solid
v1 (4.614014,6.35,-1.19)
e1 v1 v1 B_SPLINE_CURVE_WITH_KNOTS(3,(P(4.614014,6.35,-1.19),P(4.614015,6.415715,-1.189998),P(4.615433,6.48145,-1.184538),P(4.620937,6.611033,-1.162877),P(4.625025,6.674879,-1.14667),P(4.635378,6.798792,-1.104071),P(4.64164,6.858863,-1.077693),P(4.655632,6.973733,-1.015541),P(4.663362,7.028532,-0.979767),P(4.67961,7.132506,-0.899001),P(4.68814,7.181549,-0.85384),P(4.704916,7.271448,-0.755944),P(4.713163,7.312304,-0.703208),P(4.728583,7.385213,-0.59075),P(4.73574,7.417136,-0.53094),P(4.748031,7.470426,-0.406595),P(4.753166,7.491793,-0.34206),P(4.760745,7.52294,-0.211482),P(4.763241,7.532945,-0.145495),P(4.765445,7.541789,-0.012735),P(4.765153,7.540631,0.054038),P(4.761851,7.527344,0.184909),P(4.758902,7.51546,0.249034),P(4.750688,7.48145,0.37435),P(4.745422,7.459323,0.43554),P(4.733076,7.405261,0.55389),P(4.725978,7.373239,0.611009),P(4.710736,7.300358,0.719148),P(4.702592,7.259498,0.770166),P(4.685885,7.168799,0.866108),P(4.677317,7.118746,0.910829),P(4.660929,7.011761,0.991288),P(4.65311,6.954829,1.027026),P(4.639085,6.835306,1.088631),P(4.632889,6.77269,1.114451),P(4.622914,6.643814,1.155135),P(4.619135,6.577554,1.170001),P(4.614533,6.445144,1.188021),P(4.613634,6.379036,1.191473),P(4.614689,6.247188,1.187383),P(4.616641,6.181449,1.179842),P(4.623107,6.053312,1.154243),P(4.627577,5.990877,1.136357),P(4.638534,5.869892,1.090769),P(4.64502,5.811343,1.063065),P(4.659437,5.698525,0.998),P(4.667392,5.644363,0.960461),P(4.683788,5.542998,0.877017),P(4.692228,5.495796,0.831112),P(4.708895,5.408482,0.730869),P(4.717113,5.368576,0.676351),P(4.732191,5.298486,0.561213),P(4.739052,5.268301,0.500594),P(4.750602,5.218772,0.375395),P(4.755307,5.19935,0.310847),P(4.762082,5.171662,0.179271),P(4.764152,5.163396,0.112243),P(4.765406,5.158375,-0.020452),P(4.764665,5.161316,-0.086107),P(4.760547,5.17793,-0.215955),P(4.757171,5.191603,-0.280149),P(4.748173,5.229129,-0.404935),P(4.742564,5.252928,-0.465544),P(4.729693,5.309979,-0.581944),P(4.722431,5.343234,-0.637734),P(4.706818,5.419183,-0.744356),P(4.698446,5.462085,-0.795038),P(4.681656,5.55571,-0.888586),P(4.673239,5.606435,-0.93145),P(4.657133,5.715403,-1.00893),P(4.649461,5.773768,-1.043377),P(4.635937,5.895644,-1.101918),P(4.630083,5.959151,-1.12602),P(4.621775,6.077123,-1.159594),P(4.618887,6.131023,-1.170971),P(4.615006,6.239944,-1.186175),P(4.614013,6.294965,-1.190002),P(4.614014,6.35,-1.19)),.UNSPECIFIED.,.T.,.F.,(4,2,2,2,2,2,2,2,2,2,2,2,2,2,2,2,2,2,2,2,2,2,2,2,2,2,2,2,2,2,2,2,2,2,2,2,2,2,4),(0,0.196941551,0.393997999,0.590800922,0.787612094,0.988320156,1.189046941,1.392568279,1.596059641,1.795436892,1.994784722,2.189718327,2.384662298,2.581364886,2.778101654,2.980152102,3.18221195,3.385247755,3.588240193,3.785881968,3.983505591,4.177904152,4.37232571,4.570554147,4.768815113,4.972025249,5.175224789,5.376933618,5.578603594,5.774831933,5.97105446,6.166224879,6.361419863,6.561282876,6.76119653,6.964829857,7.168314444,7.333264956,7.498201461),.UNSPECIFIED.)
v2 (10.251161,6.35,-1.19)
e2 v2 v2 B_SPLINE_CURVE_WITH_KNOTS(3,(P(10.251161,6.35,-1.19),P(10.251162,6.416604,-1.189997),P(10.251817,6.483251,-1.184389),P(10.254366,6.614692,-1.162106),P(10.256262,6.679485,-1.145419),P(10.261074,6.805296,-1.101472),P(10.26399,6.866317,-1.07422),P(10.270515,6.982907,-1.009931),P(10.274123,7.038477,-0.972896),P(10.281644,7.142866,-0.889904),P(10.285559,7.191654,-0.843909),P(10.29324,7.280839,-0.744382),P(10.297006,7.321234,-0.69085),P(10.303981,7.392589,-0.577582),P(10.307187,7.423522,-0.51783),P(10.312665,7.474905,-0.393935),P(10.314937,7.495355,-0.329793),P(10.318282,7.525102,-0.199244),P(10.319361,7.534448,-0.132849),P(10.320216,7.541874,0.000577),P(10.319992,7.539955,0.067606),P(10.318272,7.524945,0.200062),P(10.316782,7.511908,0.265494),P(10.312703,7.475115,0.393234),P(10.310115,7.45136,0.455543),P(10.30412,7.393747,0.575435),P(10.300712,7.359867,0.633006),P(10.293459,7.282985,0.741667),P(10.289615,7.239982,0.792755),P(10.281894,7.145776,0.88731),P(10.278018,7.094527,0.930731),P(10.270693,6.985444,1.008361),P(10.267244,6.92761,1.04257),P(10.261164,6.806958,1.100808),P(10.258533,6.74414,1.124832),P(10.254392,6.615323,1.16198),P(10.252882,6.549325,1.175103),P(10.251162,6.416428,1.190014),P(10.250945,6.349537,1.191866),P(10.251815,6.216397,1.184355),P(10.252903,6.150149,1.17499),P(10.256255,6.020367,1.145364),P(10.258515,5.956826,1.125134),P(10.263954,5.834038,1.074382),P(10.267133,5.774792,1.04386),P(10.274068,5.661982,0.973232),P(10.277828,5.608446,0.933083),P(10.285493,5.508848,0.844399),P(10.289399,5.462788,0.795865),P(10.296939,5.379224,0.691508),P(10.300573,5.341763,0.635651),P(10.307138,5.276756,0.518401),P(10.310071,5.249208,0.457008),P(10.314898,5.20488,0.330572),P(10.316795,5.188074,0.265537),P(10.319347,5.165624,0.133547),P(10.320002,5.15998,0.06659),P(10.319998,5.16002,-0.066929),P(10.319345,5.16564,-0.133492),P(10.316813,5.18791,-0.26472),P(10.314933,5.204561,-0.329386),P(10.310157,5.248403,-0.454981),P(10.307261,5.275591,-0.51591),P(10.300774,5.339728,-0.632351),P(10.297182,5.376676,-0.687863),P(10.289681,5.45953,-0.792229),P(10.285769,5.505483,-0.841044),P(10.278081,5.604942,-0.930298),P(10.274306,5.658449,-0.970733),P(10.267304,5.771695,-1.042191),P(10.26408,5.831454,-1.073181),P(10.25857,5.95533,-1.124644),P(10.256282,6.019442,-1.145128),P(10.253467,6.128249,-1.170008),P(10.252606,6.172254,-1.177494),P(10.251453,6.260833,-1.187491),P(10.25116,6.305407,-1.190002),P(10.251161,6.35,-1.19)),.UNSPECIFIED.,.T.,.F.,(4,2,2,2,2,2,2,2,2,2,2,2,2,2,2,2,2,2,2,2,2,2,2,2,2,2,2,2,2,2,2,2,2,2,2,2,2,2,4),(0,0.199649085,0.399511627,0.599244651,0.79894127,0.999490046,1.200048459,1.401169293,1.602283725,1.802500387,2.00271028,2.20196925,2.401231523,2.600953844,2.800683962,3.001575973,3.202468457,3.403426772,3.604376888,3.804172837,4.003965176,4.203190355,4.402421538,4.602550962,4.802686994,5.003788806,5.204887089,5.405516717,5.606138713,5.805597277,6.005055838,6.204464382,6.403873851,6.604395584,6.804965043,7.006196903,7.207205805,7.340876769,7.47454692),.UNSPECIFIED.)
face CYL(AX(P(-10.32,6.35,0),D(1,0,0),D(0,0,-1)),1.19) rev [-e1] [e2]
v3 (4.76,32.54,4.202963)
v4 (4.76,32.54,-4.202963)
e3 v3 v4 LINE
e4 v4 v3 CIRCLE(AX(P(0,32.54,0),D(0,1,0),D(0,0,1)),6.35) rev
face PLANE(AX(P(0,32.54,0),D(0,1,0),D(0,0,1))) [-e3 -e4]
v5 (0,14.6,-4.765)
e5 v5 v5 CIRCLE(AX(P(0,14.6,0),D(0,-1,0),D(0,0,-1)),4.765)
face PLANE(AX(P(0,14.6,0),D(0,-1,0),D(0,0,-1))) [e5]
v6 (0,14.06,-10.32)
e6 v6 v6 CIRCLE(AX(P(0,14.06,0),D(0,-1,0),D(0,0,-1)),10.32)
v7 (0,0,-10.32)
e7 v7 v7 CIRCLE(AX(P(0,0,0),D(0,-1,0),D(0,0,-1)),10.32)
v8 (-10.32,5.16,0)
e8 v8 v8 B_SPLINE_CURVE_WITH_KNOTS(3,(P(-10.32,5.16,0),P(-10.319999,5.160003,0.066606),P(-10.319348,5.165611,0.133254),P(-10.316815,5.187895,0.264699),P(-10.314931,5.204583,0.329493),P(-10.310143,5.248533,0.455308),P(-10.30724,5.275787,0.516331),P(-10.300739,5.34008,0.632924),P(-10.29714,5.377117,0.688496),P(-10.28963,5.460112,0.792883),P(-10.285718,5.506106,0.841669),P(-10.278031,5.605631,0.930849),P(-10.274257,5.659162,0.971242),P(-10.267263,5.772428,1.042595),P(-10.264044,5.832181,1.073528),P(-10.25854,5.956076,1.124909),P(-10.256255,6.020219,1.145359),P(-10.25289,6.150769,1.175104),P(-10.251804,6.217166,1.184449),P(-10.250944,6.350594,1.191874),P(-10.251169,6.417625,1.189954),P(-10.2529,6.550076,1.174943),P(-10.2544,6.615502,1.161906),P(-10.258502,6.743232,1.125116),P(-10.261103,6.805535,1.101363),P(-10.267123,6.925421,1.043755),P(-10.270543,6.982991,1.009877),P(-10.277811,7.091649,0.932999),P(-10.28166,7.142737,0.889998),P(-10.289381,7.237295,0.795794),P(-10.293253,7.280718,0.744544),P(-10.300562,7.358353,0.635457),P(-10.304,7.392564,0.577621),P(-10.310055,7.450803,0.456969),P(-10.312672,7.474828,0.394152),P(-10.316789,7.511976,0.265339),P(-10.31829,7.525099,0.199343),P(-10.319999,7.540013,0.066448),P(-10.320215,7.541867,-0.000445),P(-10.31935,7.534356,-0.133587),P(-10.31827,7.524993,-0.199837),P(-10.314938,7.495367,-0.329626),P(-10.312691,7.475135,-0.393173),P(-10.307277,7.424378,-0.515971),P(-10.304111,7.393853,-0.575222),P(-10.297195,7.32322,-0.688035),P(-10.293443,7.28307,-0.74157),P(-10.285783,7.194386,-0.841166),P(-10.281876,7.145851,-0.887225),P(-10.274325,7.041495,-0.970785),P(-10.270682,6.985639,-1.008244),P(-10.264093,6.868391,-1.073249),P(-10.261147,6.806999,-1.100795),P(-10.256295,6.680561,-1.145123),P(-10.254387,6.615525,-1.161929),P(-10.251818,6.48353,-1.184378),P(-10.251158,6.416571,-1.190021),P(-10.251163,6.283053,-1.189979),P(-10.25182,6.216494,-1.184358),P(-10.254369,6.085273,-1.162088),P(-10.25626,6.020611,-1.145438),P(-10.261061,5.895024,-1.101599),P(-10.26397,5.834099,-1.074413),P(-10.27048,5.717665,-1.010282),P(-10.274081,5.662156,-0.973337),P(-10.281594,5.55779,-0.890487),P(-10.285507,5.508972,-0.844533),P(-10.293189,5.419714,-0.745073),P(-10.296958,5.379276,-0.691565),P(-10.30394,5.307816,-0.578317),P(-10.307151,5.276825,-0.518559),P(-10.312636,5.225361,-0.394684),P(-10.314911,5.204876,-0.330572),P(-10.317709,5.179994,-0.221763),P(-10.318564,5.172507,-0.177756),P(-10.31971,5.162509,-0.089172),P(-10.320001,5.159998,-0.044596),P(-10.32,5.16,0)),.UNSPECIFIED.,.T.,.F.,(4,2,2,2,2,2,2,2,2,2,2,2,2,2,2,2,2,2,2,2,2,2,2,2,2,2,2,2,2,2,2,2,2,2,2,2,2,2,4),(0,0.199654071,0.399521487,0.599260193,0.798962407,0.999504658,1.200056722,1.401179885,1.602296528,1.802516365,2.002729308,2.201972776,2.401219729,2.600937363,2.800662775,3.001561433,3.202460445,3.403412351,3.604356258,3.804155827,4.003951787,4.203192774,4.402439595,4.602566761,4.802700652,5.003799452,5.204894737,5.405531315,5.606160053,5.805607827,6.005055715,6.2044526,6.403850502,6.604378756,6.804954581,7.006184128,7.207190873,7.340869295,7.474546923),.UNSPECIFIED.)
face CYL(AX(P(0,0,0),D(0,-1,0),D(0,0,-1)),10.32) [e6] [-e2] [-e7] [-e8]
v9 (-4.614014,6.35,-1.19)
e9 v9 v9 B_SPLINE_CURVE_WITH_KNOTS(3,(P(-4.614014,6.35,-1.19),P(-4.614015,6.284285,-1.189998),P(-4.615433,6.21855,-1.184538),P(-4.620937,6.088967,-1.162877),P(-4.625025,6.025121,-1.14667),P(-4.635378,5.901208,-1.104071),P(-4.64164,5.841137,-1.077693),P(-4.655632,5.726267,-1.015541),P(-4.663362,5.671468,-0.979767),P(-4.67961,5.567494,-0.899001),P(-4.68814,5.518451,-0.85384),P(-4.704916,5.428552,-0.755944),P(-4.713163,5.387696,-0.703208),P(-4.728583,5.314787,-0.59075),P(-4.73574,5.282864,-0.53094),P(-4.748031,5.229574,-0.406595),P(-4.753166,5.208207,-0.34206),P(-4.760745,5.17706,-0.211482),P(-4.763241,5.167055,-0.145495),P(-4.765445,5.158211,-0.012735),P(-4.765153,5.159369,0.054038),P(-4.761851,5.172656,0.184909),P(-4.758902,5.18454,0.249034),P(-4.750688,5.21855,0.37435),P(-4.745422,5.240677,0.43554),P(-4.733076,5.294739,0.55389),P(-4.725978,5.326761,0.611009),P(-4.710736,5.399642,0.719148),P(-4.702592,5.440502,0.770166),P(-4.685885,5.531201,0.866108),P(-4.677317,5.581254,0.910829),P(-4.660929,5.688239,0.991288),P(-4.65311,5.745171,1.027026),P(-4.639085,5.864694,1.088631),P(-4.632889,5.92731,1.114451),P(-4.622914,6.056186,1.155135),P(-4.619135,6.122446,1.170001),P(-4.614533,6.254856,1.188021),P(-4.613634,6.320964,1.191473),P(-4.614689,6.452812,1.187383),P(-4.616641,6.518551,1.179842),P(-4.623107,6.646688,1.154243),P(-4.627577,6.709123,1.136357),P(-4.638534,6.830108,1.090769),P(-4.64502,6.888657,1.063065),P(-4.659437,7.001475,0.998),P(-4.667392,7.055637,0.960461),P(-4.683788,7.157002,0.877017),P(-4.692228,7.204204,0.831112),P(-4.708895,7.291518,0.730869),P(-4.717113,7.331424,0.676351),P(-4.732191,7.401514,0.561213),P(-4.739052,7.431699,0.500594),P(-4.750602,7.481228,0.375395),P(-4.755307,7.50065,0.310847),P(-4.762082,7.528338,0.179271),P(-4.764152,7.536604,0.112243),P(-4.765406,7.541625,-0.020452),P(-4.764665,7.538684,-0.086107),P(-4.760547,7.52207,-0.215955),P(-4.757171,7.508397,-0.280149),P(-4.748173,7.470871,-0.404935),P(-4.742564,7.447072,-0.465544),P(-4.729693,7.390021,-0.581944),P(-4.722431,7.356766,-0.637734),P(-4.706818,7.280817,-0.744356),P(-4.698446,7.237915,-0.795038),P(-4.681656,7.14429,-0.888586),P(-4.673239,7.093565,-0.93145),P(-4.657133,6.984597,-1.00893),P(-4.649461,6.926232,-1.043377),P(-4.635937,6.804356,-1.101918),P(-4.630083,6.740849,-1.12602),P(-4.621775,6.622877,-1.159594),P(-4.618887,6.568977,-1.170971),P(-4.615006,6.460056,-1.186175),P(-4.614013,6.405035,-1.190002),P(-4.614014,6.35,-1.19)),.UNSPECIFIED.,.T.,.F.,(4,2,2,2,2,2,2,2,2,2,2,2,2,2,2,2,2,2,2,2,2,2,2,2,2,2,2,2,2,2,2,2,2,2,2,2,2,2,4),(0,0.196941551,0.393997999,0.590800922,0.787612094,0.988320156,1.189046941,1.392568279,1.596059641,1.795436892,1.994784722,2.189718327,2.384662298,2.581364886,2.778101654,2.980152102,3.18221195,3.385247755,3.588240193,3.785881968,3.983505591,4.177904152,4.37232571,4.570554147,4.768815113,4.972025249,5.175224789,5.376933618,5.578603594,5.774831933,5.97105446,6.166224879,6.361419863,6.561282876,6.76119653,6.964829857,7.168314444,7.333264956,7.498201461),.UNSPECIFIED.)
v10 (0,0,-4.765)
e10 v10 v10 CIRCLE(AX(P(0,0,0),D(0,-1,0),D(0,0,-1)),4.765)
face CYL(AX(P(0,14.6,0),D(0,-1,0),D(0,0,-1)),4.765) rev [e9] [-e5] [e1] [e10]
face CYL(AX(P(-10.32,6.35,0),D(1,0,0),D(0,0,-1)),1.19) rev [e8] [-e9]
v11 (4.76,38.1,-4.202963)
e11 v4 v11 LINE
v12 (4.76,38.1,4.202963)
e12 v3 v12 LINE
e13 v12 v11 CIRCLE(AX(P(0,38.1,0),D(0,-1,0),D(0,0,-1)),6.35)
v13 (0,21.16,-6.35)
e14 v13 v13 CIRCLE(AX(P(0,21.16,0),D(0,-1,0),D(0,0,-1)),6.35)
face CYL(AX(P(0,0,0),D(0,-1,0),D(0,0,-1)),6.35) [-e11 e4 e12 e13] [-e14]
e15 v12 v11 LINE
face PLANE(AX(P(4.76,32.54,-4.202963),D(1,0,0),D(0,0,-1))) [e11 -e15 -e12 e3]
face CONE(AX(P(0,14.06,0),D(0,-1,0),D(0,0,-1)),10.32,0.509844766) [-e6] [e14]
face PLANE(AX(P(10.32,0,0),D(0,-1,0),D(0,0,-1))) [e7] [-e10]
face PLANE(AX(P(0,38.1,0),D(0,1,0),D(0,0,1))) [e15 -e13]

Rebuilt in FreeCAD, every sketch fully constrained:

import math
import FreeCAD as App
import Part
import Sketcher
from FreeCAD import Vector
Q = App.Units.Quantity

doc = App.newDocument("Part")
body = doc.addObject("PartDesign::Body", "Body")

# Sketch on XY plane
sketch1 = body.newObject("Sketcher::SketchObject", "Sketch")
sketch1.AttachmentSupport = (doc.getObject("XY_Plane"), [""])
sketch1.MapMode = "FlatFace"
sketch1.addGeometry(Part.LineSegment(Vector(0, 38, 0), Vector(0, 0, 0)), False)
sketch1.addGeometry(Part.LineSegment(Vector(0, 0, 0), Vector(10, 0, 0)), False)
sketch1.addGeometry(Part.LineSegment(Vector(10, 0, 0), Vector(10, 14, 0)), False)
sketch1.addGeometry(Part.LineSegment(Vector(10, 14, 0), Vector(6, 21, 0)), False)
sketch1.addGeometry(Part.LineSegment(Vector(6, 21, 0), Vector(6, 38, 0)), False)
sketch1.addGeometry(Part.LineSegment(Vector(6, 38, 0), Vector(0, 38, 0)), False)
sketch1.addConstraint(Sketcher.Constraint("Coincident", 0, 2, 1, 1))
sketch1.addConstraint(Sketcher.Constraint("Coincident", 1, 2, 2, 1))
sketch1.addConstraint(Sketcher.Constraint("Coincident", 2, 2, 3, 1))
sketch1.addConstraint(Sketcher.Constraint("Coincident", 3, 2, 4, 1))
sketch1.addConstraint(Sketcher.Constraint("Coincident", 4, 2, 5, 1))
sketch1.addConstraint(Sketcher.Constraint("Coincident", 5, 2, 0, 1))
sketch1.addConstraint(Sketcher.Constraint("Vertical", 0))
sketch1.addConstraint(Sketcher.Constraint("Horizontal", 1))
sketch1.addConstraint(Sketcher.Constraint("Vertical", 2))
sketch1.addConstraint(Sketcher.Constraint("Vertical", 4))
sketch1.addConstraint(Sketcher.Constraint("Horizontal", 5))
sketch1.addConstraint(Sketcher.Constraint("Coincident", 0, 2, -1, 1))
sketch1.addConstraint(Sketcher.Constraint("DistanceY", 0, 2, 0, 1, Q("1.5 in")))
sketch1.addConstraint(Sketcher.Constraint("DistanceX", 5, 2, 5, 1, Q("0.25 in")))
sketch1.addConstraint(Sketcher.Constraint("DistanceX", 1, 1, 1, 2, Q("10.32 mm")))
sketch1.addConstraint(Sketcher.Constraint("DistanceY", 2, 1, 2, 2, Q("14.06 mm")))
sketch1.addConstraint(Sketcher.Constraint("DistanceY", 4, 1, 4, 2, Q("16.94 mm")))
revolution = body.newObject("PartDesign::Revolution", "Revolution")
revolution.Profile = sketch1
revolution.ReferenceAxis = (sketch1, ["V_Axis"])
revolution.Angle = 360

# Sketch on XZ plane
sketch2 = body.newObject("Sketcher::SketchObject", "Sketch001")
sketch2.AttachmentSupport = (doc.getObject("XZ_Plane"), [""])
sketch2.MapMode = "FlatFace"
sketch2.AttachmentOffset = App.Placement(Vector(0, 0, -1.5 * 25.4), App.Rotation())
sketch2.addGeometry(Part.LineSegment(Vector(-16, -16, 0), Vector(-16, 16, 0)), False)
sketch2.addGeometry(Part.LineSegment(Vector(-16, 16, 0), Vector(16, 16, 0)), False)
sketch2.addGeometry(Part.LineSegment(Vector(16, 16, 0), Vector(16, -16, 0)), False)
sketch2.addGeometry(Part.LineSegment(Vector(16, -16, 0), Vector(-16, -16, 0)), False)
sketch2.addGeometry(Part.ArcOfCircle(Part.Circle(Vector(0, 0, 0), Vector(0, 0, 1), 6), math.radians(41), math.radians(319)), False)
sketch2.addGeometry(Part.LineSegment(Vector(5, -4, 0), Vector(5, 4, 0)), False)
sketch2.addConstraint(Sketcher.Constraint("Coincident", 0, 2, 1, 1))
sketch2.addConstraint(Sketcher.Constraint("Coincident", 1, 2, 2, 1))
sketch2.addConstraint(Sketcher.Constraint("Coincident", 2, 2, 3, 1))
sketch2.addConstraint(Sketcher.Constraint("Coincident", 3, 2, 0, 1))
sketch2.addConstraint(Sketcher.Constraint("Coincident", 4, 1, 5, 2))
sketch2.addConstraint(Sketcher.Constraint("Coincident", 5, 1, 4, 2))
sketch2.addConstraint(Sketcher.Constraint("Vertical", 0))
sketch2.addConstraint(Sketcher.Constraint("Horizontal", 1))
sketch2.addConstraint(Sketcher.Constraint("Vertical", 2))
sketch2.addConstraint(Sketcher.Constraint("Horizontal", 3))
sketch2.addConstraint(Sketcher.Constraint("Vertical", 5))
sketch2.addConstraint(Sketcher.Constraint("Coincident", 4, 3, -1, 1))
sketch2.addConstraint(Sketcher.Constraint("Symmetric", 0, 2, 2, 2, -1, 1))
sketch2.addConstraint(Sketcher.Constraint("Equal", 3, 0))
sketch2.addConstraint(Sketcher.Constraint("Radius", 4, Q("0.25 in")))
sketch2.addConstraint(Sketcher.Constraint("DistanceX", 1, 1, 1, 2, Q("32.24 mm")))
sketch2.addConstraint(Sketcher.Constraint("DistanceX", -1, 1, 4, 1, Q("4.76 mm")))
pocket1 = body.newObject("PartDesign::Pocket", "Pocket")
pocket1.Profile = sketch2
pocket1.Length = 5.56
pocket1.Reversed = True

# Sketch on XZ plane
sketch3 = body.newObject("Sketcher::SketchObject", "Sketch002")
sketch3.AttachmentSupport = (doc.getObject("XZ_Plane"), [""])
sketch3.MapMode = "FlatFace"
sketch3.addGeometry(Part.Circle(Vector(0, 0, 0), Vector(0, 0, 1), 4.8), False)
sketch3.addConstraint(Sketcher.Constraint("Coincident", 0, 3, -1, 1))
sketch3.addConstraint(Sketcher.Constraint("Diameter", 0, Q("9.53 mm")))
pocket2 = body.newObject("PartDesign::Pocket", "Pocket001")
pocket2.Profile = sketch3
pocket2.Length = 14.6

# Sketch on YZ plane
sketch4 = body.newObject("Sketcher::SketchObject", "Sketch003")
sketch4.AttachmentSupport = (doc.getObject("YZ_Plane"), [""])
sketch4.MapMode = "FlatFace"
sketch4.addGeometry(Part.Circle(Vector(6.3, 0, 0), Vector(0, 0, 1), 1.2), False)
sketch4.addConstraint(Sketcher.Constraint("PointOnObject", 0, 3, -1))
sketch4.addConstraint(Sketcher.Constraint("Diameter", 0, Q("2.38 mm")))
sketch4.addConstraint(Sketcher.Constraint("DistanceX", -1, 1, 0, 3, Q("0.25 in")))
pocket3 = body.newObject("PartDesign::Pocket", "Pocket002")
pocket3.Profile = sketch4
pocket3.Type = "ThroughAll"
pocket3.Midplane = True

doc.recompute()
